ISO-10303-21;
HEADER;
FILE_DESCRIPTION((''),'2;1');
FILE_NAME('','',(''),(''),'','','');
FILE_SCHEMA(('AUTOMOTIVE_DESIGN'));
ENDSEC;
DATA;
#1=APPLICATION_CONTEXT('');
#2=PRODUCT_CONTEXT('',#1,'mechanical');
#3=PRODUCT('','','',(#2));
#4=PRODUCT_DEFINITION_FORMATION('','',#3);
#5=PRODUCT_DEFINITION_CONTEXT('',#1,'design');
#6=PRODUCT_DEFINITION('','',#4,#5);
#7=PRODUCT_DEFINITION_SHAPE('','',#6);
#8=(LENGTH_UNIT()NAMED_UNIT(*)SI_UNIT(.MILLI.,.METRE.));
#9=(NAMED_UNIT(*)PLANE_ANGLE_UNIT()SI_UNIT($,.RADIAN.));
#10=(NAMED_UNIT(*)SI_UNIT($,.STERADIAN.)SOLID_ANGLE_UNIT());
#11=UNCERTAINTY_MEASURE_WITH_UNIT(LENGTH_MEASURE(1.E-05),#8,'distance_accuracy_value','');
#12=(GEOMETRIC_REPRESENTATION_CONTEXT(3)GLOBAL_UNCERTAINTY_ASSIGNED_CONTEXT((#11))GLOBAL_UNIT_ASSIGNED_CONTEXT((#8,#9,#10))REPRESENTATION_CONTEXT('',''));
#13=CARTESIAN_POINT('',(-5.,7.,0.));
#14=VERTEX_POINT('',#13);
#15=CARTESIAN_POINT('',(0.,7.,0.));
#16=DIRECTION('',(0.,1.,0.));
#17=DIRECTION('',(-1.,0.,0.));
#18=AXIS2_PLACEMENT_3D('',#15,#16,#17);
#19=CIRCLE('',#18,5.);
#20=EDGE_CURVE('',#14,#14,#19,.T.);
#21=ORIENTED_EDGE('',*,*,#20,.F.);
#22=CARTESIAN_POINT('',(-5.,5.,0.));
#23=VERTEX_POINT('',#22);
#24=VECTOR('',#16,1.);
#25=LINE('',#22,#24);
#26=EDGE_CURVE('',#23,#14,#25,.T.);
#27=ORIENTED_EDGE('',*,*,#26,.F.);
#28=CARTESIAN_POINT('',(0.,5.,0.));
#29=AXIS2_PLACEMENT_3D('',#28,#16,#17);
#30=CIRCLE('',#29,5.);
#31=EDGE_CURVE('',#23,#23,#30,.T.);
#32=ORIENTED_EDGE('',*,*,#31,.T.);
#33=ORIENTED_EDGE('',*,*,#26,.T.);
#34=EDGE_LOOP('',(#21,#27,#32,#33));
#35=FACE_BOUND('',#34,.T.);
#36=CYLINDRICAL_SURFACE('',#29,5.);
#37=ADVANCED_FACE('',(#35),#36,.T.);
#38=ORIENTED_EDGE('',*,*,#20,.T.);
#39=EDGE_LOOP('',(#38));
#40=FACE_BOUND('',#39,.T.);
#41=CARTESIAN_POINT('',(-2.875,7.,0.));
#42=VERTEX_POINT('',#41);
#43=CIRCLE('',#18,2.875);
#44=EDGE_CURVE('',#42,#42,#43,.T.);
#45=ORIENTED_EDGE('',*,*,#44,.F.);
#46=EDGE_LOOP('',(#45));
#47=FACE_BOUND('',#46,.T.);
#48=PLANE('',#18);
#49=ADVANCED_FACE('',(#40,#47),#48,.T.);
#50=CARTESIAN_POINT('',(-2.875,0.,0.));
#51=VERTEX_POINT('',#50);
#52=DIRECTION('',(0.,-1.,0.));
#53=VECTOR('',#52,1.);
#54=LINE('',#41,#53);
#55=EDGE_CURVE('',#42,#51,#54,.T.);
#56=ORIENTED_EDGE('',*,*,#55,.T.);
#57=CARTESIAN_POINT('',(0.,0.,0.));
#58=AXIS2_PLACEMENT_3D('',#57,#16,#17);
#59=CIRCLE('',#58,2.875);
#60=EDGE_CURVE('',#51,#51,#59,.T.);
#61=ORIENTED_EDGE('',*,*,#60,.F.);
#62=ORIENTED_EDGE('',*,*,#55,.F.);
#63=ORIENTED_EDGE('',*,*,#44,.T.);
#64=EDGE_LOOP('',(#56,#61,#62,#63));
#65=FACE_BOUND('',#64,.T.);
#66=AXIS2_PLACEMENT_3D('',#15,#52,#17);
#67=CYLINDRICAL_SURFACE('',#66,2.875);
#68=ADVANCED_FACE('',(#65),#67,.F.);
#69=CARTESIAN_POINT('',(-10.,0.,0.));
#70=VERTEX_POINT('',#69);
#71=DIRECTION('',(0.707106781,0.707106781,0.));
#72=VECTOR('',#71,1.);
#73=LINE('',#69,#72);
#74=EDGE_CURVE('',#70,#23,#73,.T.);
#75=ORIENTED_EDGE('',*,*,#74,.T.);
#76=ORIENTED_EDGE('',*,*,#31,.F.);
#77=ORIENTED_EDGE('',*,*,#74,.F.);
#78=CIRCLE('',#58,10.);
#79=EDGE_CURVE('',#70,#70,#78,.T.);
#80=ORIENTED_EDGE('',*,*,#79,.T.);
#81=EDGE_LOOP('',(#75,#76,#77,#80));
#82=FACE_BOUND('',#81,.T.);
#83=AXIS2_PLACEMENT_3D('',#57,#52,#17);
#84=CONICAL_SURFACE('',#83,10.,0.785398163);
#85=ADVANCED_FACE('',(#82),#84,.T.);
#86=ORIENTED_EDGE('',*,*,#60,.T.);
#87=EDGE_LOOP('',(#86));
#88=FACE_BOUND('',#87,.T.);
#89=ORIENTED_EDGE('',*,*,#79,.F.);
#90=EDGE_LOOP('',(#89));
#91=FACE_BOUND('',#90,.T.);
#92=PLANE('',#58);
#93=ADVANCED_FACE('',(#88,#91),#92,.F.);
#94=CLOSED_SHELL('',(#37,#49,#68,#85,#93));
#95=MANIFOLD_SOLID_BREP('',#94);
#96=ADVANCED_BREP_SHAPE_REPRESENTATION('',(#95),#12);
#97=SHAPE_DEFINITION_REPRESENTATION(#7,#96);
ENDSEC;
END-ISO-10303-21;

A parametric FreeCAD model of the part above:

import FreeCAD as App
import Part
import Sketcher
Q = App.Units.Quantity


def add_polygon(sketch, points):
    """Adds a closed chain of lines whose ends are joined by coincident constraints."""
    first, n = sketch.GeometryCount, len(points)
    for a, b in zip(points, points[1:] + points[:1]):
        sketch.addGeometry(Part.LineSegment(App.Vector(*a, 0), App.Vector(*b, 0)), False)
    for i in range(n):
        sketch.addConstraint(Sketcher.Constraint("Coincident", first + i, 2, first + (i + 1) % n, 1))

doc = App.newDocument("Part")
body = doc.addObject("PartDesign::Body", "Body")

sketch1 = body.newObject("Sketcher::SketchObject", "Sketch")
sketch1.AttachmentSupport = (doc.getObject("XY_Plane"), [""])
sketch1.MapMode = "FlatFace"
add_polygon(sketch1, [(-10, 0), (-2.9, 0), (-2.9, 7), (-5, 7), (-5, 5)])
sketch1.addConstraint([
    Sketcher.Constraint("Horizontal", 0),
    Sketcher.Constraint("Vertical", 1),
    Sketcher.Constraint("Horizontal", 2),
    Sketcher.Constraint("Vertical", 3),
    Sketcher.Constraint("PointOnObject", 0, 2, -1),
    Sketcher.Constraint("DistanceY", 1, 1, 1, 2, Q("7 mm")),
    Sketcher.Constraint("DistanceY", 3, 2, 3, 1, Q("2 mm")),
    Sketcher.Constraint("Angle", 4, Q("-135 deg")),
    Sketcher.Constraint("DistanceX", 2, 2, -1, 1, Q("5 mm")),
    Sketcher.Constraint("DistanceX", 0, 1, 0, 2, Q("7.125 mm")),
])
revolution = body.newObject("PartDesign::Revolution", "Revolution")
revolution.Profile = sketch1
revolution.ReferenceAxis = (sketch1, ["V_Axis"])
revolution.Angle = 360

doc.recompute()
